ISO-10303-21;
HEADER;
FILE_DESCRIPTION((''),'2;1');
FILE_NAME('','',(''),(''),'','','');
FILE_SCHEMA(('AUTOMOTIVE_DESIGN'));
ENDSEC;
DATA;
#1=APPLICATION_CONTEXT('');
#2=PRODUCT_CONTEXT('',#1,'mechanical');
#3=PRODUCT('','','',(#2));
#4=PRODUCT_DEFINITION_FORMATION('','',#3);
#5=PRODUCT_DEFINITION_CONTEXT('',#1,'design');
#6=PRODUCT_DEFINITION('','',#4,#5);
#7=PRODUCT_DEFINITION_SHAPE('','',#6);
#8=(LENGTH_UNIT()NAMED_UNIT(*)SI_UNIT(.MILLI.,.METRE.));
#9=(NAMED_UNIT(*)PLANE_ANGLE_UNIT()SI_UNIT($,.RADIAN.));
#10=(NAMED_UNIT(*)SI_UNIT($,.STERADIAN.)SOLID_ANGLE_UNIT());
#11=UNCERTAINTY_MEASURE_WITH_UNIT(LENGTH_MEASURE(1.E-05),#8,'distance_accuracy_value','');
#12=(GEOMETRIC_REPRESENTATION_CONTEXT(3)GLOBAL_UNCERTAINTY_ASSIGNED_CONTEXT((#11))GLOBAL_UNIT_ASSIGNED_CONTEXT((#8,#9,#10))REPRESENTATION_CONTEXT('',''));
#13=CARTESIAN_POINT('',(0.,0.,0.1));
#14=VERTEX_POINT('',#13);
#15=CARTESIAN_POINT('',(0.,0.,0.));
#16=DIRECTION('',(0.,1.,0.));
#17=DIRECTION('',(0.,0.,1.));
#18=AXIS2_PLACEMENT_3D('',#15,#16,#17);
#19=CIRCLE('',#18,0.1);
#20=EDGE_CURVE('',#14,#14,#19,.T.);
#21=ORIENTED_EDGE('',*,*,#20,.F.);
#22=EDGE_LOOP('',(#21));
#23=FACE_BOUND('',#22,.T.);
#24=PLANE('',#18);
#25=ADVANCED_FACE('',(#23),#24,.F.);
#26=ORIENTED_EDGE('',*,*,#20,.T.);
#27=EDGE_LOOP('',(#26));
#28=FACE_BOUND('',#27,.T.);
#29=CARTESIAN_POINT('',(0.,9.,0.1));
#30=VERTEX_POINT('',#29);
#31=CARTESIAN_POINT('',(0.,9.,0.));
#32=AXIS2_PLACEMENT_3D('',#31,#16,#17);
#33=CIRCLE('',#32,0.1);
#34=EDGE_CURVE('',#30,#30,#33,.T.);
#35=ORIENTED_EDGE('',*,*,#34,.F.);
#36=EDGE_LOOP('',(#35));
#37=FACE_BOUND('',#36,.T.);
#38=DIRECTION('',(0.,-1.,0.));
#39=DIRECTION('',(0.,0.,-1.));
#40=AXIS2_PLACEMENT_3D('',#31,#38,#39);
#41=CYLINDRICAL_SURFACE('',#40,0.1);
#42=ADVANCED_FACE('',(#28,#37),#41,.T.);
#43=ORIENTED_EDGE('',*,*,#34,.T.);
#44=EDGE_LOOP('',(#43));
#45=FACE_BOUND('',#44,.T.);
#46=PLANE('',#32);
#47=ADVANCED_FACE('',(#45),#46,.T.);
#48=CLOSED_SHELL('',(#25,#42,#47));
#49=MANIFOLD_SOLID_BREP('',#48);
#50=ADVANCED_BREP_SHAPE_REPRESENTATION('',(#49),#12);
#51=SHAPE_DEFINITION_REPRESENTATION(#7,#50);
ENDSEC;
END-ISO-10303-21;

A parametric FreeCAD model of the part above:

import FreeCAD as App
import Part
import Sketcher

doc = App.newDocument("Part")
body = doc.addObject("PartDesign::Body", "Body")

sketch1 = body.newObject("Sketcher::SketchObject", "Sketch")
sketch1.AttachmentSupport = (doc.getObject("XZ_Plane"), [""])
sketch1.MapMode = "FlatFace"
sketch1.addGeometry(Part.Circle(App.Vector(0, 0, 0), App.Vector(0, 0, 1), 0.1), False)
sketch1.addConstraint(Sketcher.Constraint("Coincident", 0, 3, -1, 1))
sketch1.addConstraint(Sketcher.Constraint("Diameter", 0, 0.2))
pad1 = body.newObject("PartDesign::Pad", "Pad")
pad1.Profile = sketch1
pad1.Length = 9
pad1.Reversed = True

doc.recompute()
